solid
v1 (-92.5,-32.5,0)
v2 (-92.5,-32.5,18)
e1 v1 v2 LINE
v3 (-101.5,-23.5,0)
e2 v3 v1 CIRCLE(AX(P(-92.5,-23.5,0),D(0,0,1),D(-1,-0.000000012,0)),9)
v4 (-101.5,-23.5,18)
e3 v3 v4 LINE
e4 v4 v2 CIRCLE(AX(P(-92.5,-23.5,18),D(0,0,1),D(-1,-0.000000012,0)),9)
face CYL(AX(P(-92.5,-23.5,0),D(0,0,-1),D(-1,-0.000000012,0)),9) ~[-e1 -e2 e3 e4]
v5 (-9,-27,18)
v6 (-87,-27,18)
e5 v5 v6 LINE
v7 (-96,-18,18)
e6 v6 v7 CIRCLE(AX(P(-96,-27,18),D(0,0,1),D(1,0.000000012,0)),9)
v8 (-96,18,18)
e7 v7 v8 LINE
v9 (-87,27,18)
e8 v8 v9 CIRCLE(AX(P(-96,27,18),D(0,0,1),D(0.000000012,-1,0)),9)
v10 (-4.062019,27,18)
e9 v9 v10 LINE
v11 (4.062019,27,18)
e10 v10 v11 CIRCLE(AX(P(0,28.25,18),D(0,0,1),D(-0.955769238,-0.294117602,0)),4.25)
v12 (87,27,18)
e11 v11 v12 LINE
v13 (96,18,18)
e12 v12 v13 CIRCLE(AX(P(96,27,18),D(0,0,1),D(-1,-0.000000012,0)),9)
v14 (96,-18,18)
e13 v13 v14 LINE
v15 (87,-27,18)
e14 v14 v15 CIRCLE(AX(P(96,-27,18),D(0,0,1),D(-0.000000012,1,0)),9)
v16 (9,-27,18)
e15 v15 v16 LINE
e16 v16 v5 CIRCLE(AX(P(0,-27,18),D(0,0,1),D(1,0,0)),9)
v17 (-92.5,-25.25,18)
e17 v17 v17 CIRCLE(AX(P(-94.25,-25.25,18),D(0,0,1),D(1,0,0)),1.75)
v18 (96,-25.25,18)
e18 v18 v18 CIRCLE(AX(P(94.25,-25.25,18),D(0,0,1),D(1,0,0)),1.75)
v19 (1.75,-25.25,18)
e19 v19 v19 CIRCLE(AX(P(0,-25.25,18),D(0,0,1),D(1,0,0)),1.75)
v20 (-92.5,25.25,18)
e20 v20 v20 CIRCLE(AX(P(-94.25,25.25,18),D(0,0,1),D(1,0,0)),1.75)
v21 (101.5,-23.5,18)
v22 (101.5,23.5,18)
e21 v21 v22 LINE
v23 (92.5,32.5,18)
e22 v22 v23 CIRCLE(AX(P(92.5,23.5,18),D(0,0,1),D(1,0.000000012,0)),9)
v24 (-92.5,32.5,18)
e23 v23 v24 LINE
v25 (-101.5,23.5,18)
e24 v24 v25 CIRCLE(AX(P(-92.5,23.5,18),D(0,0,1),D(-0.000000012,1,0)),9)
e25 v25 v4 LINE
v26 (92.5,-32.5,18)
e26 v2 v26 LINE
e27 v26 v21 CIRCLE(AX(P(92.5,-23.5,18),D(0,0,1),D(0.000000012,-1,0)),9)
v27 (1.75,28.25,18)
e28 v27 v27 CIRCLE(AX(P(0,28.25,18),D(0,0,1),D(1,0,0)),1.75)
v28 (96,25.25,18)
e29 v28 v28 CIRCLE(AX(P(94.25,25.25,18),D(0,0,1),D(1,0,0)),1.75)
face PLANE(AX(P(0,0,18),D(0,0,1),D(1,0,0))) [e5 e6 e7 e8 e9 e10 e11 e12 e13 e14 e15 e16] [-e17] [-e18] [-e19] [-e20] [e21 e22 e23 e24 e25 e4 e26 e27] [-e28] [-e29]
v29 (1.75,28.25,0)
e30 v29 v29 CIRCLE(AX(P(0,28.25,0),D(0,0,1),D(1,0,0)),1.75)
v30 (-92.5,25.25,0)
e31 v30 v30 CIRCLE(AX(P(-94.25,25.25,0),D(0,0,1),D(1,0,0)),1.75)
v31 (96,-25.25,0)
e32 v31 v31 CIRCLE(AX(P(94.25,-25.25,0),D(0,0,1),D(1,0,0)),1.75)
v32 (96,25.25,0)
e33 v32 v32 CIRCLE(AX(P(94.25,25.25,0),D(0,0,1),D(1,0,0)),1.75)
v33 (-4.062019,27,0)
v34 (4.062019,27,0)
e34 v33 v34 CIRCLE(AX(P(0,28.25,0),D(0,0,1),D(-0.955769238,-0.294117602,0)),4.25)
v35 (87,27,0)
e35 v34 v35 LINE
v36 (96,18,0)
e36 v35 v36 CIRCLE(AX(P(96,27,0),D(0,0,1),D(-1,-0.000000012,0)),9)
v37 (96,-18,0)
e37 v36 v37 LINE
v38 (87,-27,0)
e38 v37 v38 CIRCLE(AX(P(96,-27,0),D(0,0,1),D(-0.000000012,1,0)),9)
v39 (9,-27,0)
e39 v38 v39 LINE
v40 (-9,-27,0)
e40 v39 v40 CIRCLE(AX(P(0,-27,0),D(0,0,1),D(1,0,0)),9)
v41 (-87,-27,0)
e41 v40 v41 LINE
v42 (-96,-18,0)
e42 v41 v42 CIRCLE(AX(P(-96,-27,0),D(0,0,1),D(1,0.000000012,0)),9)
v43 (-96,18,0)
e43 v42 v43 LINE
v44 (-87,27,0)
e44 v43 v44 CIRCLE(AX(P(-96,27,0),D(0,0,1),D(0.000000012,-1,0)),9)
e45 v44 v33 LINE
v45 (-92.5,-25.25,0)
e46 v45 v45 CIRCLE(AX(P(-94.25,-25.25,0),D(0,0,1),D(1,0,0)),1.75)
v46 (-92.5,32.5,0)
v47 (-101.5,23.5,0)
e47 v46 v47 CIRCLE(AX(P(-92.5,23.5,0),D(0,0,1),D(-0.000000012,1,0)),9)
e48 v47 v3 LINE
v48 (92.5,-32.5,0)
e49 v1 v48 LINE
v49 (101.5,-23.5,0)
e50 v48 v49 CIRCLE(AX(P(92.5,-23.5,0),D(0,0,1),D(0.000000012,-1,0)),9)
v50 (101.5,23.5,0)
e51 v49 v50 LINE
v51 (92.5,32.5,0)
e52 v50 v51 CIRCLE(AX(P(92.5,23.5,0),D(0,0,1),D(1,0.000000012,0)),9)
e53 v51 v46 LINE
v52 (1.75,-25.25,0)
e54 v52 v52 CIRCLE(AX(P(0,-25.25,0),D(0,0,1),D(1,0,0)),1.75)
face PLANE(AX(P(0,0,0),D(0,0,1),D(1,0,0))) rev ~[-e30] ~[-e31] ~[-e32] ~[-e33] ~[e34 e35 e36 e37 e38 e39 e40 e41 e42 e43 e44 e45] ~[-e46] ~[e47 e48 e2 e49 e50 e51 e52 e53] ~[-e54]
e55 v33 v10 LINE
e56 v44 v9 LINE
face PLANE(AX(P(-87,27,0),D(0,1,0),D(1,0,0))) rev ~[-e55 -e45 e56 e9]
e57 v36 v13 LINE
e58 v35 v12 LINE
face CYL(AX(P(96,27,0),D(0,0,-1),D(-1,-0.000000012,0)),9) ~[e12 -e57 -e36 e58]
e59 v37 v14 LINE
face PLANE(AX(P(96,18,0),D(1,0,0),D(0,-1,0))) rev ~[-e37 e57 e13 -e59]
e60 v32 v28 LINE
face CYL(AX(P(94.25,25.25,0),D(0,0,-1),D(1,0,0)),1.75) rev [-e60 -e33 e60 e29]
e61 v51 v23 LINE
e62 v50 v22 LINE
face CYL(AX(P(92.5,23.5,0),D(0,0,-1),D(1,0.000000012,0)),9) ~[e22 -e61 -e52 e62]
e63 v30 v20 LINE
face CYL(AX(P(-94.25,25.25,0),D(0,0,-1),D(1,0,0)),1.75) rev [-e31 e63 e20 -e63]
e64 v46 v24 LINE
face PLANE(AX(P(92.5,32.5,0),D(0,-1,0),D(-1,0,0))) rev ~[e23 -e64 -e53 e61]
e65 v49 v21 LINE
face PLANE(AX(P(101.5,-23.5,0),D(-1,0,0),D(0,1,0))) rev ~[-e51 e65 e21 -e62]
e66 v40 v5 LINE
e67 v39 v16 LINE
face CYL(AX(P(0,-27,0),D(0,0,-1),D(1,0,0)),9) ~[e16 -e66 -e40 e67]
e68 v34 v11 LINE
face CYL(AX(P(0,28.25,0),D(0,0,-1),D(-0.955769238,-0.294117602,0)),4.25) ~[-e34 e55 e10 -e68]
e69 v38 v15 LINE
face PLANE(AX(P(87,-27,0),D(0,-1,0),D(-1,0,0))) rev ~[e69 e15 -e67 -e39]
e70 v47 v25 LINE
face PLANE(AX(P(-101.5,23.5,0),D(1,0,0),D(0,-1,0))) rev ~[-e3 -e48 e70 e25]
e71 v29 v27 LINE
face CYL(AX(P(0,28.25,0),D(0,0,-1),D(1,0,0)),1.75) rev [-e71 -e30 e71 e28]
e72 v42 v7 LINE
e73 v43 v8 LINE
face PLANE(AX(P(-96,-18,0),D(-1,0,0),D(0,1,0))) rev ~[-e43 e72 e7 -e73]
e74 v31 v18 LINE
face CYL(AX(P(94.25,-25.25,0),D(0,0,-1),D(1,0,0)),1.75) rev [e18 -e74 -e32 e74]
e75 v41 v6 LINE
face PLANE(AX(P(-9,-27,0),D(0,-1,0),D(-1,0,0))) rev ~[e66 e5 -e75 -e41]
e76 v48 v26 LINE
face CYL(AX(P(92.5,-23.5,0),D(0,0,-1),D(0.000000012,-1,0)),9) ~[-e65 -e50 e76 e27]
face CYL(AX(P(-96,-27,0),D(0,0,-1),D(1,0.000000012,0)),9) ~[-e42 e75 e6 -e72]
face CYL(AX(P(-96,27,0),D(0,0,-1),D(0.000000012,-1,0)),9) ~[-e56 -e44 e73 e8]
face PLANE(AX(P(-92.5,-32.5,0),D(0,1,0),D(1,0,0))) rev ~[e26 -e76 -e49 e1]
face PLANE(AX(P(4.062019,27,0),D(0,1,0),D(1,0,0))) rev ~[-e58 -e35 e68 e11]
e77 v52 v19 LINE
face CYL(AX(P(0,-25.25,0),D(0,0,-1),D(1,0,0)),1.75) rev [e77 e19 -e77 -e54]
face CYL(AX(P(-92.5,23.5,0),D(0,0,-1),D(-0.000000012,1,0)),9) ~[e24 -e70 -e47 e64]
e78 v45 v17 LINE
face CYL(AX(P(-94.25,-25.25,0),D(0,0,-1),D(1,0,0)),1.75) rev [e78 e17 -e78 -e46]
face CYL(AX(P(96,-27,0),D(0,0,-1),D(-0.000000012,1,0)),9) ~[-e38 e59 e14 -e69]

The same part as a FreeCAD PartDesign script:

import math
import FreeCAD as App
import Part
import Sketcher
Q = App.Units.Quantity

doc = App.newDocument("Part")
body = doc.addObject("PartDesign::Body", "Body")

# Sketch on XY plane
sketch1 = body.newObject("Sketcher::SketchObject", "Sketch")
sketch1.AttachmentSupport = (doc.getObject("XY_Plane"), [""])
sketch1.MapMode = "FlatFace"
sketch1.addGeometry([
    Part.LineSegment(App.Vector(-92.5, -32.5, 0), App.Vector(92.5, -32.5, 0)),  # 0
    Part.ArcOfCircle(Part.Circle(App.Vector(92.5, -23.5, 0), App.Vector(0, 0, 1), 9), math.radians(-90), math.radians(0)),  # 1
    Part.LineSegment(App.Vector(101.5, -23.5, 0), App.Vector(101.5, 23.5, 0)),  # 2
    Part.ArcOfCircle(Part.Circle(App.Vector(92.5, 23.5, 0), App.Vector(0, 0, 1), 9), math.radians(0), math.radians(90)),  # 3
    Part.LineSegment(App.Vector(92.5, 32.5, 0), App.Vector(-92.5, 32.5, 0)),  # 4
    Part.ArcOfCircle(Part.Circle(App.Vector(-92.5, 23.5, 0), App.Vector(0, 0, 1), 9), math.radians(90), math.radians(180)),  # 5
    Part.LineSegment(App.Vector(-101.5, 23.5, 0), App.Vector(-101.5, -23.5, 0)),  # 6
    Part.ArcOfCircle(Part.Circle(App.Vector(-92.5, -23.5, 0), App.Vector(0, 0, 1), 9), math.radians(-180), math.radians(-90)),  # 7
    Part.Circle(App.Vector(-94.2, -25.2, 0), App.Vector(0, 0, 1), 1.8),  # 8
    Part.Circle(App.Vector(0, -25.2, 0), App.Vector(0, 0, 1), 1.8),  # 9
    Part.Circle(App.Vector(94.2, -25.2, 0), App.Vector(0, 0, 1), 1.8),  # 10
    Part.LineSegment(App.Vector(-9, -27, 0), App.Vector(-87, -27, 0)),  # 11
    Part.ArcOfCircle(Part.Circle(App.Vector(-96, -27, 0), App.Vector(0, 0, 1), 9), math.radians(0), math.radians(90)),  # 12
    Part.LineSegment(App.Vector(-96, -18, 0), App.Vector(-96, 18, 0)),  # 13
    Part.ArcOfCircle(Part.Circle(App.Vector(-96, 27, 0), App.Vector(0, 0, 1), 9), math.radians(-90), math.radians(0)),  # 14
    Part.LineSegment(App.Vector(-87, 27, 0), App.Vector(-4.1, 27, 0)),  # 15
    Part.ArcOfCircle(Part.Circle(App.Vector(0, 28.2, 0), App.Vector(0, 0, 1), 4.2), math.radians(-163), math.radians(-17)),  # 16
    Part.LineSegment(App.Vector(4.1, 27, 0), App.Vector(87, 27, 0)),  # 17
    Part.ArcOfCircle(Part.Circle(App.Vector(96, 27, 0), App.Vector(0, 0, 1), 9), math.radians(-180), math.radians(-90)),  # 18
    Part.LineSegment(App.Vector(96, 18, 0), App.Vector(96, -18, 0)),  # 19
    Part.ArcOfCircle(Part.Circle(App.Vector(96, -27, 0), App.Vector(0, 0, 1), 9), math.radians(90), math.radians(180)),  # 20
    Part.LineSegment(App.Vector(87, -27, 0), App.Vector(9, -27, 0)),  # 21
    Part.ArcOfCircle(Part.Circle(App.Vector(0, -27, 0), App.Vector(0, 0, 1), 9), math.radians(0), math.radians(180)),  # 22
    Part.Circle(App.Vector(-94.2, 25.2, 0), App.Vector(0, 0, 1), 1.8),  # 23
    Part.Circle(App.Vector(0, 28.2, 0), App.Vector(0, 0, 1), 1.8),  # 24
    Part.Circle(App.Vector(94.2, 25.2, 0), App.Vector(0, 0, 1), 1.8),  # 25
], False)
sketch1.addConstraint([
    Sketcher.Constraint("Tangent", 0, 2, 1, 1),
    Sketcher.Constraint("Tangent", 1, 2, 2, 1),
    Sketcher.Constraint("Tangent", 2, 2, 3, 1),
    Sketcher.Constraint("Tangent", 3, 2, 4, 1),
    Sketcher.Constraint("Tangent", 4, 2, 5, 1),
    Sketcher.Constraint("Tangent", 5, 2, 6, 1),
    Sketcher.Constraint("Tangent", 6, 2, 7, 1),
    Sketcher.Constraint("Tangent", 7, 2, 0, 1),
    Sketcher.Constraint("Coincident", 11, 2, 12, 1),
    Sketcher.Constraint("Coincident", 12, 2, 13, 1),
    Sketcher.Constraint("Coincident", 13, 2, 14, 1),
    Sketcher.Constraint("Coincident", 14, 2, 15, 1),
    Sketcher.Constraint("Coincident", 15, 2, 16, 1),
    Sketcher.Constraint("Coincident", 16, 2, 17, 1),
    Sketcher.Constraint("Coincident", 17, 2, 18, 1),
    Sketcher.Constraint("Coincident", 18, 2, 19, 1),
    Sketcher.Constraint("Coincident", 19, 2, 20, 1),
    Sketcher.Constraint("Coincident", 20, 2, 21, 1),
    Sketcher.Constraint("Coincident", 21, 2, 22, 1),
    Sketcher.Constraint("Coincident", 22, 2, 11, 1),
    Sketcher.Constraint("Horizontal", 0),
    Sketcher.Constraint("Vertical", 2),
    Sketcher.Constraint("Horizontal", 4),
    Sketcher.Constraint("Vertical", 6),
    Sketcher.Constraint("Horizontal", 11),
    Sketcher.Constraint("Vertical", 13),
    Sketcher.Constraint("Horizontal", 15),
    Sketcher.Constraint("Horizontal", 17),
    Sketcher.Constraint("Vertical", 19),
    Sketcher.Constraint("Horizontal", 21),
    Sketcher.Constraint("Coincident", 24, 3, 16, 3),
    Sketcher.Constraint("Equal", 1, 3),
    Sketcher.Constraint("Equal", 3, 5),
    Sketcher.Constraint("Equal", 5, 7),
    Sketcher.Constraint("Equal", 8, 9),
    Sketcher.Constraint("Equal", 9, 10),
    Sketcher.Constraint("Equal", 7, 12),
    Sketcher.Constraint("Equal", 12, 14),
    Sketcher.Constraint("Equal", 14, 18),
    Sketcher.Constraint("Equal", 18, 20),
    Sketcher.Constraint("Equal", 20, 22),
    Sketcher.Constraint("Equal", 10, 23),
    Sketcher.Constraint("Equal", 23, 24),
    Sketcher.Constraint("Equal", 24, 25),
    Sketcher.Constraint("Symmetric", 1, 3, 5, 3, -1, 1),
    Sketcher.Constraint("Symmetric", 12, 3, 18, 3, -1, 1),
    Sketcher.Constraint("Symmetric", 14, 3, 20, 3, -1, 1),
    Sketcher.Constraint("Symmetric", 10, 3, 23, 3, -1, 1),
    Sketcher.Constraint("Symmetric", 8, 3, 25, 3, -1, 1),
    Sketcher.Constraint("Symmetric", 8, 3, 10, 3, -2),
    Sketcher.Constraint("Symmetric", 14, 3, 18, 3, -2),
    Sketcher.Constraint("Symmetric", 15, 2, 16, 2, -2),
    Sketcher.Constraint("Symmetric", 21, 2, 22, 2, -2),
    Sketcher.Constraint("PointOnObject", 9, 3, -2),
    Sketcher.Constraint("Horizontal", 8, 3, 9, 3),
    Sketcher.Constraint("Horizontal", 20, 3, 22, 3),
    Sketcher.Constraint("Horizontal", 22, 3, 11, 2),
    Sketcher.Constraint("Horizontal", 18, 3, 14, 2),
    Sketcher.Constraint("Vertical", 14, 3, 12, 2),
    Sketcher.Constraint("Vertical", 20, 3, 18, 2),
    Sketcher.Constraint("Radius", 1, Q("9 mm")),
    Sketcher.Constraint("Diameter", 8, Q("3.5 mm")),
    Sketcher.Constraint("DistanceX", 0, 1, 0, 2, Q("185 mm")),
    Sketcher.Constraint("DistanceX", 11, 2, 11, 1, Q("78 mm")),
    Sketcher.Constraint("DistanceY", 2, 1, 2, 2, Q("47 mm")),
    Sketcher.Constraint("DistanceY", 13, 1, 13, 2, Q("36 mm")),
    Sketcher.Constraint("Radius", 16, Q("4.25 mm")),
    Sketcher.Constraint("DistanceX", 8, 3, 10, 3, Q("188.5 mm")),
    Sketcher.Constraint("DistanceY", 9, 3, 16, 3, Q("53.5 mm")),
    Sketcher.Constraint("DistanceY", 8, 3, 23, 3, Q("50.5 mm")),
])
pad1 = body.newObject("PartDesign::Pad", "Pad")
pad1.Profile = sketch1
pad1.Length = 18

doc.recompute()
